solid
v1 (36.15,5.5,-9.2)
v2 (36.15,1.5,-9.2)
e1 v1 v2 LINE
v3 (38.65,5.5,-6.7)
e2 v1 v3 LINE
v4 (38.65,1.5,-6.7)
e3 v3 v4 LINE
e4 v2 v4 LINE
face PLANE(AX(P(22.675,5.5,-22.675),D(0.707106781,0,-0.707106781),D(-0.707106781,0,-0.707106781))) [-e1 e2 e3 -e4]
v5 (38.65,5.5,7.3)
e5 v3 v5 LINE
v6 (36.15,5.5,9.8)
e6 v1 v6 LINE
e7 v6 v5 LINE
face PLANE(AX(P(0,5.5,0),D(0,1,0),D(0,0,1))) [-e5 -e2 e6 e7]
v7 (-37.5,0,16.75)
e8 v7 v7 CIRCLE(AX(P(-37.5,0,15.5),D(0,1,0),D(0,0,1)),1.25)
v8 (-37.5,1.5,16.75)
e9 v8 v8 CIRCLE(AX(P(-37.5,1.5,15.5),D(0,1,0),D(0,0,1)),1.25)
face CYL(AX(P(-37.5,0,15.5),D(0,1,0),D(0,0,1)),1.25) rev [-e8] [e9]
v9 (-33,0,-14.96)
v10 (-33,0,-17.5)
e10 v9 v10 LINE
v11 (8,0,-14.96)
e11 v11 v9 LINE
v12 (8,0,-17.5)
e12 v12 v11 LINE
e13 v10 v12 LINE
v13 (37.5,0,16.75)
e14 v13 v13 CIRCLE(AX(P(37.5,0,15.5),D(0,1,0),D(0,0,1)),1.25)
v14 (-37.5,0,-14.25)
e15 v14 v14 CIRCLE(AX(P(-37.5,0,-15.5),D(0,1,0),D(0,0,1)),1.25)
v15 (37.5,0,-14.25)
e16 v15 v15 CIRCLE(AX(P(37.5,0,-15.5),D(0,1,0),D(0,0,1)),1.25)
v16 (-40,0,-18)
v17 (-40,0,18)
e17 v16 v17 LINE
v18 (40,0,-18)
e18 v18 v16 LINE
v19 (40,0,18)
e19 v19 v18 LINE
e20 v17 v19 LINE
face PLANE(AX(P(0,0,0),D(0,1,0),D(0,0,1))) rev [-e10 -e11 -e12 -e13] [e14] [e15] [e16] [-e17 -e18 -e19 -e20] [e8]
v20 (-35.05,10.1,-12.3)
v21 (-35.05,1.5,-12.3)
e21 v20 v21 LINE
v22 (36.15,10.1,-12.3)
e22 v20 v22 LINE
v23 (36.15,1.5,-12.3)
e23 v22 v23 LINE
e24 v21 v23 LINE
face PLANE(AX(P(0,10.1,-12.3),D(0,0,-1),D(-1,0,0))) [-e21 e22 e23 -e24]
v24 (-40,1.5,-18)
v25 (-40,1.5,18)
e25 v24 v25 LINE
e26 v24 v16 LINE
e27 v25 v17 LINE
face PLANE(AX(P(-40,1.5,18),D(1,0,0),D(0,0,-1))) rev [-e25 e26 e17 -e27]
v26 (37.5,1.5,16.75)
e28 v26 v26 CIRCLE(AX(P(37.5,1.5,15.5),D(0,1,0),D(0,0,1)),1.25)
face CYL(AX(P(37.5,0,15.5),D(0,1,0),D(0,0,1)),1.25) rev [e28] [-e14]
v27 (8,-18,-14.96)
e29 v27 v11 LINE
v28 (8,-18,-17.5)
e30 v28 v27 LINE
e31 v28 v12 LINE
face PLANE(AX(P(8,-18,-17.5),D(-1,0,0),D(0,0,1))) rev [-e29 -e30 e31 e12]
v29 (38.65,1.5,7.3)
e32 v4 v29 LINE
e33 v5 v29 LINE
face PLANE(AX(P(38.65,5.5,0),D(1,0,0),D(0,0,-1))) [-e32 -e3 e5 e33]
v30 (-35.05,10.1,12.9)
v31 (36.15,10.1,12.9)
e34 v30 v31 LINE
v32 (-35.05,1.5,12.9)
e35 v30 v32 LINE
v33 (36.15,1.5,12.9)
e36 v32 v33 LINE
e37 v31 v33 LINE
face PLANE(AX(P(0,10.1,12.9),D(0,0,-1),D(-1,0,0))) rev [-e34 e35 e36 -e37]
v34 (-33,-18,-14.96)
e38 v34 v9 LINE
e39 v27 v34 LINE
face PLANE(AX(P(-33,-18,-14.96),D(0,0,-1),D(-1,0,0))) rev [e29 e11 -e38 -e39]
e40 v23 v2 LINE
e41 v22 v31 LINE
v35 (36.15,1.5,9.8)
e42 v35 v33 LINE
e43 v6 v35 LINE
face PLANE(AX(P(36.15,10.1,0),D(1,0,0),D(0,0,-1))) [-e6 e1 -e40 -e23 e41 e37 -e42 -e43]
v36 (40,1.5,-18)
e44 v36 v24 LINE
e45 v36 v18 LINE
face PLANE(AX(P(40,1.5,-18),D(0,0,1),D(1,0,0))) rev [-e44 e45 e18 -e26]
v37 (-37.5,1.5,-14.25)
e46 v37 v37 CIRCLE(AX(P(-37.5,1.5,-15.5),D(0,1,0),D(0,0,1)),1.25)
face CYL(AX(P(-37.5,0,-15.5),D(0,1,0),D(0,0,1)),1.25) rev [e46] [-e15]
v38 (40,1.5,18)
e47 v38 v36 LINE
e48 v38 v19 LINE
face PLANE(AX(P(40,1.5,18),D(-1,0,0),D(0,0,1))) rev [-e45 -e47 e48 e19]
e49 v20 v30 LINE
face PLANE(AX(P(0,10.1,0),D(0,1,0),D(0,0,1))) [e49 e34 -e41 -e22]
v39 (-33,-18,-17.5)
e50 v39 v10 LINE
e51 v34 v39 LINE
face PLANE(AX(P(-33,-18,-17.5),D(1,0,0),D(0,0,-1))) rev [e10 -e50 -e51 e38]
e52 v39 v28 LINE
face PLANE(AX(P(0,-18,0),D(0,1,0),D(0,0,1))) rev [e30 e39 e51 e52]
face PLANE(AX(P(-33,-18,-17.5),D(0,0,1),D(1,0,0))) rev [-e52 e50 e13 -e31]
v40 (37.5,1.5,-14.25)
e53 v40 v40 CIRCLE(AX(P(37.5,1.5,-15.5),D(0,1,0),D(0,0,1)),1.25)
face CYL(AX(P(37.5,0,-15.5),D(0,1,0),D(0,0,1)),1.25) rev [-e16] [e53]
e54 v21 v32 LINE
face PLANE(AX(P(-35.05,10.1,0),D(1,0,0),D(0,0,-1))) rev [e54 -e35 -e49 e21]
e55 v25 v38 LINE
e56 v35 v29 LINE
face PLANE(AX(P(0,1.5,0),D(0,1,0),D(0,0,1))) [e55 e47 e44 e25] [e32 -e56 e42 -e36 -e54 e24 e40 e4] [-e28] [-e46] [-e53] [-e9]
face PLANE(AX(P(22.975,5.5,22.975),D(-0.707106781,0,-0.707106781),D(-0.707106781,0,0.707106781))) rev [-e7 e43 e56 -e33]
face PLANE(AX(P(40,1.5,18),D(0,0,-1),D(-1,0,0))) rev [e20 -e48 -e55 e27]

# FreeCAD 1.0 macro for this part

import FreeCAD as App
import Part
import Sketcher
from FreeCAD import Vector

doc = App.newDocument("Part")
body = doc.addObject("PartDesign::Body", "Body")

sketch1 = body.newObject("Sketcher::SketchObject", "Sketch")
sketch1.AttachmentSupport = (doc.getObject("XZ_Plane"), [""])
sketch1.MapMode = "FlatFace"
sketch1.addGeometry(Part.LineSegment(Vector(-40, -18, 0), Vector(-40, 18, 0)), False)
sketch1.addGeometry(Part.LineSegment(Vector(-40, 18, 0), Vector(40, 18, 0)), False)
sketch1.addGeometry(Part.LineSegment(Vector(40, 18, 0), Vector(40, -18, 0)), False)
sketch1.addGeometry(Part.LineSegment(Vector(40, -18, 0), Vector(-40, -18, 0)), False)
sketch1.addConstraint(Sketcher.Constraint("Coincident", 0, 2, 1, 1))
sketch1.addConstraint(Sketcher.Constraint("Coincident", 1, 2, 2, 1))
sketch1.addConstraint(Sketcher.Constraint("Coincident", 2, 2, 3, 1))
sketch1.addConstraint(Sketcher.Constraint("Coincident", 3, 2, 0, 1))
sketch1.addConstraint(Sketcher.Constraint("Vertical", 0))
sketch1.addConstraint(Sketcher.Constraint("Horizontal", 1))
sketch1.addConstraint(Sketcher.Constraint("Vertical", 2))
sketch1.addConstraint(Sketcher.Constraint("Horizontal", 3))
sketch1.addConstraint(Sketcher.Constraint("Symmetric", 0, 2, 2, 2, -1, 1))
sketch1.addConstraint(Sketcher.Constraint("DistanceX", 1, 1, 1, 2, 80.0))
sketch1.addConstraint(Sketcher.Constraint("DistanceY", 0, 1, 0, 2, 36.0))
pad1 = body.newObject("PartDesign::Pad", "Pad")
pad1.Profile = sketch1
pad1.Length = 1.5
pad1.Reversed = True

sketch2 = body.newObject("Sketcher::SketchObject", "Sketch001")
sketch2.AttachmentSupport = (doc.getObject("XZ_Plane"), [""])
sketch2.MapMode = "FlatFace"
sketch2.AttachmentOffset = App.Placement(Vector(0, 0, -1.5), App.Rotation())
sketch2.addGeometry(Part.Circle(Vector(-37.5, -15.5, 0), Vector(0, 0, 1), 1.25), False)
sketch2.addGeometry(Part.Circle(Vector(37.5, -15.5, 0), Vector(0, 0, 1), 1.25), False)
sketch2.addGeometry(Part.Circle(Vector(-37.5, 15.5, 0), Vector(0, 0, 1), 1.25), False)
sketch2.addGeometry(Part.Circle(Vector(37.5, 15.5, 0), Vector(0, 0, 1), 1.25), False)
sketch2.addConstraint(Sketcher.Constraint("Equal", 0, 1))
sketch2.addConstraint(Sketcher.Constraint("Equal", 1, 2))
sketch2.addConstraint(Sketcher.Constraint("Equal", 2, 3))
sketch2.addConstraint(Sketcher.Constraint("Symmetric", 1, 3, 2, 3, -1, 1))
sketch2.addConstraint(Sketcher.Constraint("Symmetric", 0, 3, 3, 3, -1, 1))
sketch2.addConstraint(Sketcher.Constraint("Symmetric", 0, 3, 1, 3, -2))
sketch2.addConstraint(Sketcher.Constraint("Diameter", 0, 2.5))
sketch2.addConstraint(Sketcher.Constraint("DistanceX", 0, 3, 1, 3, 75.0))
sketch2.addConstraint(Sketcher.Constraint("DistanceY", 0, 3, 2, 3, 31.0))
pocket1 = body.newObject("PartDesign::Pocket", "Pocket")
pocket1.Profile = sketch2
pocket1.Length = 1.5
pocket1.Reversed = True

sketch3 = body.newObject("Sketcher::SketchObject", "Sketch002")
sketch3.AttachmentSupport = (doc.getObject("XZ_Plane"), [""])
sketch3.MapMode = "FlatFace"
sketch3.AttachmentOffset = App.Placement(Vector(0, 0, -1.5), App.Rotation())
sketch3.addGeometry(Part.LineSegment(Vector(36.15, -12.3, 0), Vector(-35.05, -12.3, 0)), False)
sketch3.addGeometry(Part.LineSegment(Vector(-35.05, -12.3, 0), Vector(-35.05, 12.9, 0)), False)
sketch3.addGeometry(Part.LineSegment(Vector(-35.05, 12.9, 0), Vector(36.15, 12.9, 0)), False)
sketch3.addGeometry(Part.LineSegment(Vector(36.15, 12.9, 0), Vector(36.15, -12.3, 0)), False)
sketch3.addConstraint(Sketcher.Constraint("Coincident", 0, 2, 1, 1))
sketch3.addConstraint(Sketcher.Constraint("Coincident", 1, 2, 2, 1))
sketch3.addConstraint(Sketcher.Constraint("Coincident", 2, 2, 3, 1))
sketch3.addConstraint(Sketcher.Constraint("Coincident", 3, 2, 0, 1))
sketch3.addConstraint(Sketcher.Constraint("Horizontal", 0))
sketch3.addConstraint(Sketcher.Constraint("Vertical", 1))
sketch3.addConstraint(Sketcher.Constraint("Horizontal", 2))
sketch3.addConstraint(Sketcher.Constraint("Vertical", 3))
sketch3.addConstraint(Sketcher.Constraint("DistanceX", 0, 2, 0, 1, 71.2))
sketch3.addConstraint(Sketcher.Constraint("DistanceY", 1, 1, 1, 2, 25.2))
sketch3.addConstraint(Sketcher.Constraint("DistanceY", 0, 2, -1, 1, 12.3))
sketch3.addConstraint(Sketcher.Constraint("DistanceX", 0, 2, -1, 1, 35.05))
pad2 = body.newObject("PartDesign::Pad", "Pad001")
pad2.Profile = sketch3
pad2.Length = 8.6
pad2.Reversed = True

sketch4 = body.newObject("Sketcher::SketchObject", "Sketch003")
sketch4.AttachmentSupport = (doc.getObject("XZ_Plane"), [""])
sketch4.MapMode = "FlatFace"
sketch4.AttachmentOffset = App.Placement(Vector(0, 0, -1.5), App.Rotation())
sketch4.addGeometry(Part.LineSegment(Vector(-35.05, -12.3, 0), Vector(-35.05, 12.9, 0)), False)
sketch4.addGeometry(Part.LineSegment(Vector(-35.05, 12.9, 0), Vector(36.15, 12.9, 0)), False)
sketch4.addGeometry(Part.LineSegment(Vector(36.15, 12.9, 0), Vector(36.15, 9.8, 0)), False)
sketch4.addGeometry(Part.LineSegment(Vector(36.15, 9.8, 0), Vector(38.65, 7.3, 0)), False)
sketch4.addGeometry(Part.LineSegment(Vector(38.65, 7.3, 0), Vector(38.65, -6.7, 0)), False)
sketch4.addGeometry(Part.LineSegment(Vector(38.65, -6.7, 0), Vector(36.15, -9.2, 0)), False)
sketch4.addGeometry(Part.LineSegment(Vector(36.15, -9.2, 0), Vector(36.15, -12.3, 0)), False)
sketch4.addGeometry(Part.LineSegment(Vector(36.15, -12.3, 0), Vector(-35.05, -12.3, 0)), False)
sketch4.addConstraint(Sketcher.Constraint("Coincident", 0, 2, 1, 1))
sketch4.addConstraint(Sketcher.Constraint("Coincident", 1, 2, 2, 1))
sketch4.addConstraint(Sketcher.Constraint("Coincident", 2, 2, 3, 1))
sketch4.addConstraint(Sketcher.Constraint("Coincident", 3, 2, 4, 1))
sketch4.addConstraint(Sketcher.Constraint("Coincident", 4, 2, 5, 1))
sketch4.addConstraint(Sketcher.Constraint("Coincident", 5, 2, 6, 1))
sketch4.addConstraint(Sketcher.Constraint("Coincident", 6, 2, 7, 1))
sketch4.addConstraint(Sketcher.Constraint("Coincident", 7, 2, 0, 1))
sketch4.addConstraint(Sketcher.Constraint("Vertical", 0))
sketch4.addConstraint(Sketcher.Constraint("Horizontal", 1))
sketch4.addConstraint(Sketcher.Constraint("Vertical", 2))
sketch4.addConstraint(Sketcher.Constraint("Vertical", 4))
sketch4.addConstraint(Sketcher.Constraint("Vertical", 6))
sketch4.addConstraint(Sketcher.Constraint("Horizontal", 7))
sketch4.addConstraint(Sketcher.Constraint("Perpendicular", 3, 5))
sketch4.addConstraint(Sketcher.Constraint("Vertical", 2, 2, 5, 2))
sketch4.addConstraint(Sketcher.Constraint("Equal", 2, 6))
sketch4.addConstraint(Sketcher.Constraint("Equal", 3, 5))
sketch4.addConstraint(Sketcher.Constraint("DistanceY", 4, 2, 4, 1, 14.0))
sketch4.addConstraint(Sketcher.Constraint("DistanceX", 1, 1, 1, 2, 71.2))
sketch4.addConstraint(Sketcher.Constraint("DistanceY", 0, 1, 0, 2, 25.2))
sketch4.addConstraint(Sketcher.Constraint("DistanceY", 2, 2, 2, 1, 3.1))
sketch4.addConstraint(Sketcher.Constraint("DistanceY", -1, 1, 0, 2, 12.9))
sketch4.addConstraint(Sketcher.Constraint("DistanceX", 0, 2, -1, 1, 35.05))
pad3 = body.newObject("PartDesign::Pad", "Pad002")
pad3.Profile = sketch4
pad3.Length = 4
pad3.Reversed = True

sketch5 = body.newObject("Sketcher::SketchObject", "Sketch004")
sketch5.AttachmentSupport = (doc.getObject("XZ_Plane"), [""])
sketch5.MapMode = "FlatFace"
sketch5.addGeometry(Part.LineSegment(Vector(-33, -14.96, 0), Vector(-33, -17.5, 0)), False)
sketch5.addGeometry(Part.LineSegment(Vector(-33, -17.5, 0), Vector(8, -17.5, 0)), False)
sketch5.addGeometry(Part.LineSegment(Vector(8, -17.5, 0), Vector(8, -14.96, 0)), False)
sketch5.addGeometry(Part.LineSegment(Vector(8, -14.96, 0), Vector(-33, -14.96, 0)), False)
sketch5.addConstraint(Sketcher.Constraint("Coincident", 0, 2, 1, 1))
sketch5.addConstraint(Sketcher.Constraint("Coincident", 1, 2, 2, 1))
sketch5.addConstraint(Sketcher.Constraint("Coincident", 2, 2, 3, 1))
sketch5.addConstraint(Sketcher.Constraint("Coincident", 3, 2, 0, 1))
sketch5.addConstraint(Sketcher.Constraint("Vertical", 0))
sketch5.addConstraint(Sketcher.Constraint("Horizontal", 1))
sketch5.addConstraint(Sketcher.Constraint("Vertical", 2))
sketch5.addConstraint(Sketcher.Constraint("Horizontal", 3))
sketch5.addConstraint(Sketcher.Constraint("DistanceX", 1, 1, 1, 2, 41.0))
sketch5.addConstraint(Sketcher.Constraint("DistanceX", 0, 2, -1, 1, 33.0))
sketch5.addConstraint(Sketcher.Constraint("DistanceY", 0, 2, 0, 1, 2.54))
sketch5.addConstraint(Sketcher.Constraint("DistanceY", 0, 2, -1, 1, 17.5))
pad4 = body.newObject("PartDesign::Pad", "Pad003")
pad4.Profile = sketch5
pad4.Length = 18

doc.recompute()
